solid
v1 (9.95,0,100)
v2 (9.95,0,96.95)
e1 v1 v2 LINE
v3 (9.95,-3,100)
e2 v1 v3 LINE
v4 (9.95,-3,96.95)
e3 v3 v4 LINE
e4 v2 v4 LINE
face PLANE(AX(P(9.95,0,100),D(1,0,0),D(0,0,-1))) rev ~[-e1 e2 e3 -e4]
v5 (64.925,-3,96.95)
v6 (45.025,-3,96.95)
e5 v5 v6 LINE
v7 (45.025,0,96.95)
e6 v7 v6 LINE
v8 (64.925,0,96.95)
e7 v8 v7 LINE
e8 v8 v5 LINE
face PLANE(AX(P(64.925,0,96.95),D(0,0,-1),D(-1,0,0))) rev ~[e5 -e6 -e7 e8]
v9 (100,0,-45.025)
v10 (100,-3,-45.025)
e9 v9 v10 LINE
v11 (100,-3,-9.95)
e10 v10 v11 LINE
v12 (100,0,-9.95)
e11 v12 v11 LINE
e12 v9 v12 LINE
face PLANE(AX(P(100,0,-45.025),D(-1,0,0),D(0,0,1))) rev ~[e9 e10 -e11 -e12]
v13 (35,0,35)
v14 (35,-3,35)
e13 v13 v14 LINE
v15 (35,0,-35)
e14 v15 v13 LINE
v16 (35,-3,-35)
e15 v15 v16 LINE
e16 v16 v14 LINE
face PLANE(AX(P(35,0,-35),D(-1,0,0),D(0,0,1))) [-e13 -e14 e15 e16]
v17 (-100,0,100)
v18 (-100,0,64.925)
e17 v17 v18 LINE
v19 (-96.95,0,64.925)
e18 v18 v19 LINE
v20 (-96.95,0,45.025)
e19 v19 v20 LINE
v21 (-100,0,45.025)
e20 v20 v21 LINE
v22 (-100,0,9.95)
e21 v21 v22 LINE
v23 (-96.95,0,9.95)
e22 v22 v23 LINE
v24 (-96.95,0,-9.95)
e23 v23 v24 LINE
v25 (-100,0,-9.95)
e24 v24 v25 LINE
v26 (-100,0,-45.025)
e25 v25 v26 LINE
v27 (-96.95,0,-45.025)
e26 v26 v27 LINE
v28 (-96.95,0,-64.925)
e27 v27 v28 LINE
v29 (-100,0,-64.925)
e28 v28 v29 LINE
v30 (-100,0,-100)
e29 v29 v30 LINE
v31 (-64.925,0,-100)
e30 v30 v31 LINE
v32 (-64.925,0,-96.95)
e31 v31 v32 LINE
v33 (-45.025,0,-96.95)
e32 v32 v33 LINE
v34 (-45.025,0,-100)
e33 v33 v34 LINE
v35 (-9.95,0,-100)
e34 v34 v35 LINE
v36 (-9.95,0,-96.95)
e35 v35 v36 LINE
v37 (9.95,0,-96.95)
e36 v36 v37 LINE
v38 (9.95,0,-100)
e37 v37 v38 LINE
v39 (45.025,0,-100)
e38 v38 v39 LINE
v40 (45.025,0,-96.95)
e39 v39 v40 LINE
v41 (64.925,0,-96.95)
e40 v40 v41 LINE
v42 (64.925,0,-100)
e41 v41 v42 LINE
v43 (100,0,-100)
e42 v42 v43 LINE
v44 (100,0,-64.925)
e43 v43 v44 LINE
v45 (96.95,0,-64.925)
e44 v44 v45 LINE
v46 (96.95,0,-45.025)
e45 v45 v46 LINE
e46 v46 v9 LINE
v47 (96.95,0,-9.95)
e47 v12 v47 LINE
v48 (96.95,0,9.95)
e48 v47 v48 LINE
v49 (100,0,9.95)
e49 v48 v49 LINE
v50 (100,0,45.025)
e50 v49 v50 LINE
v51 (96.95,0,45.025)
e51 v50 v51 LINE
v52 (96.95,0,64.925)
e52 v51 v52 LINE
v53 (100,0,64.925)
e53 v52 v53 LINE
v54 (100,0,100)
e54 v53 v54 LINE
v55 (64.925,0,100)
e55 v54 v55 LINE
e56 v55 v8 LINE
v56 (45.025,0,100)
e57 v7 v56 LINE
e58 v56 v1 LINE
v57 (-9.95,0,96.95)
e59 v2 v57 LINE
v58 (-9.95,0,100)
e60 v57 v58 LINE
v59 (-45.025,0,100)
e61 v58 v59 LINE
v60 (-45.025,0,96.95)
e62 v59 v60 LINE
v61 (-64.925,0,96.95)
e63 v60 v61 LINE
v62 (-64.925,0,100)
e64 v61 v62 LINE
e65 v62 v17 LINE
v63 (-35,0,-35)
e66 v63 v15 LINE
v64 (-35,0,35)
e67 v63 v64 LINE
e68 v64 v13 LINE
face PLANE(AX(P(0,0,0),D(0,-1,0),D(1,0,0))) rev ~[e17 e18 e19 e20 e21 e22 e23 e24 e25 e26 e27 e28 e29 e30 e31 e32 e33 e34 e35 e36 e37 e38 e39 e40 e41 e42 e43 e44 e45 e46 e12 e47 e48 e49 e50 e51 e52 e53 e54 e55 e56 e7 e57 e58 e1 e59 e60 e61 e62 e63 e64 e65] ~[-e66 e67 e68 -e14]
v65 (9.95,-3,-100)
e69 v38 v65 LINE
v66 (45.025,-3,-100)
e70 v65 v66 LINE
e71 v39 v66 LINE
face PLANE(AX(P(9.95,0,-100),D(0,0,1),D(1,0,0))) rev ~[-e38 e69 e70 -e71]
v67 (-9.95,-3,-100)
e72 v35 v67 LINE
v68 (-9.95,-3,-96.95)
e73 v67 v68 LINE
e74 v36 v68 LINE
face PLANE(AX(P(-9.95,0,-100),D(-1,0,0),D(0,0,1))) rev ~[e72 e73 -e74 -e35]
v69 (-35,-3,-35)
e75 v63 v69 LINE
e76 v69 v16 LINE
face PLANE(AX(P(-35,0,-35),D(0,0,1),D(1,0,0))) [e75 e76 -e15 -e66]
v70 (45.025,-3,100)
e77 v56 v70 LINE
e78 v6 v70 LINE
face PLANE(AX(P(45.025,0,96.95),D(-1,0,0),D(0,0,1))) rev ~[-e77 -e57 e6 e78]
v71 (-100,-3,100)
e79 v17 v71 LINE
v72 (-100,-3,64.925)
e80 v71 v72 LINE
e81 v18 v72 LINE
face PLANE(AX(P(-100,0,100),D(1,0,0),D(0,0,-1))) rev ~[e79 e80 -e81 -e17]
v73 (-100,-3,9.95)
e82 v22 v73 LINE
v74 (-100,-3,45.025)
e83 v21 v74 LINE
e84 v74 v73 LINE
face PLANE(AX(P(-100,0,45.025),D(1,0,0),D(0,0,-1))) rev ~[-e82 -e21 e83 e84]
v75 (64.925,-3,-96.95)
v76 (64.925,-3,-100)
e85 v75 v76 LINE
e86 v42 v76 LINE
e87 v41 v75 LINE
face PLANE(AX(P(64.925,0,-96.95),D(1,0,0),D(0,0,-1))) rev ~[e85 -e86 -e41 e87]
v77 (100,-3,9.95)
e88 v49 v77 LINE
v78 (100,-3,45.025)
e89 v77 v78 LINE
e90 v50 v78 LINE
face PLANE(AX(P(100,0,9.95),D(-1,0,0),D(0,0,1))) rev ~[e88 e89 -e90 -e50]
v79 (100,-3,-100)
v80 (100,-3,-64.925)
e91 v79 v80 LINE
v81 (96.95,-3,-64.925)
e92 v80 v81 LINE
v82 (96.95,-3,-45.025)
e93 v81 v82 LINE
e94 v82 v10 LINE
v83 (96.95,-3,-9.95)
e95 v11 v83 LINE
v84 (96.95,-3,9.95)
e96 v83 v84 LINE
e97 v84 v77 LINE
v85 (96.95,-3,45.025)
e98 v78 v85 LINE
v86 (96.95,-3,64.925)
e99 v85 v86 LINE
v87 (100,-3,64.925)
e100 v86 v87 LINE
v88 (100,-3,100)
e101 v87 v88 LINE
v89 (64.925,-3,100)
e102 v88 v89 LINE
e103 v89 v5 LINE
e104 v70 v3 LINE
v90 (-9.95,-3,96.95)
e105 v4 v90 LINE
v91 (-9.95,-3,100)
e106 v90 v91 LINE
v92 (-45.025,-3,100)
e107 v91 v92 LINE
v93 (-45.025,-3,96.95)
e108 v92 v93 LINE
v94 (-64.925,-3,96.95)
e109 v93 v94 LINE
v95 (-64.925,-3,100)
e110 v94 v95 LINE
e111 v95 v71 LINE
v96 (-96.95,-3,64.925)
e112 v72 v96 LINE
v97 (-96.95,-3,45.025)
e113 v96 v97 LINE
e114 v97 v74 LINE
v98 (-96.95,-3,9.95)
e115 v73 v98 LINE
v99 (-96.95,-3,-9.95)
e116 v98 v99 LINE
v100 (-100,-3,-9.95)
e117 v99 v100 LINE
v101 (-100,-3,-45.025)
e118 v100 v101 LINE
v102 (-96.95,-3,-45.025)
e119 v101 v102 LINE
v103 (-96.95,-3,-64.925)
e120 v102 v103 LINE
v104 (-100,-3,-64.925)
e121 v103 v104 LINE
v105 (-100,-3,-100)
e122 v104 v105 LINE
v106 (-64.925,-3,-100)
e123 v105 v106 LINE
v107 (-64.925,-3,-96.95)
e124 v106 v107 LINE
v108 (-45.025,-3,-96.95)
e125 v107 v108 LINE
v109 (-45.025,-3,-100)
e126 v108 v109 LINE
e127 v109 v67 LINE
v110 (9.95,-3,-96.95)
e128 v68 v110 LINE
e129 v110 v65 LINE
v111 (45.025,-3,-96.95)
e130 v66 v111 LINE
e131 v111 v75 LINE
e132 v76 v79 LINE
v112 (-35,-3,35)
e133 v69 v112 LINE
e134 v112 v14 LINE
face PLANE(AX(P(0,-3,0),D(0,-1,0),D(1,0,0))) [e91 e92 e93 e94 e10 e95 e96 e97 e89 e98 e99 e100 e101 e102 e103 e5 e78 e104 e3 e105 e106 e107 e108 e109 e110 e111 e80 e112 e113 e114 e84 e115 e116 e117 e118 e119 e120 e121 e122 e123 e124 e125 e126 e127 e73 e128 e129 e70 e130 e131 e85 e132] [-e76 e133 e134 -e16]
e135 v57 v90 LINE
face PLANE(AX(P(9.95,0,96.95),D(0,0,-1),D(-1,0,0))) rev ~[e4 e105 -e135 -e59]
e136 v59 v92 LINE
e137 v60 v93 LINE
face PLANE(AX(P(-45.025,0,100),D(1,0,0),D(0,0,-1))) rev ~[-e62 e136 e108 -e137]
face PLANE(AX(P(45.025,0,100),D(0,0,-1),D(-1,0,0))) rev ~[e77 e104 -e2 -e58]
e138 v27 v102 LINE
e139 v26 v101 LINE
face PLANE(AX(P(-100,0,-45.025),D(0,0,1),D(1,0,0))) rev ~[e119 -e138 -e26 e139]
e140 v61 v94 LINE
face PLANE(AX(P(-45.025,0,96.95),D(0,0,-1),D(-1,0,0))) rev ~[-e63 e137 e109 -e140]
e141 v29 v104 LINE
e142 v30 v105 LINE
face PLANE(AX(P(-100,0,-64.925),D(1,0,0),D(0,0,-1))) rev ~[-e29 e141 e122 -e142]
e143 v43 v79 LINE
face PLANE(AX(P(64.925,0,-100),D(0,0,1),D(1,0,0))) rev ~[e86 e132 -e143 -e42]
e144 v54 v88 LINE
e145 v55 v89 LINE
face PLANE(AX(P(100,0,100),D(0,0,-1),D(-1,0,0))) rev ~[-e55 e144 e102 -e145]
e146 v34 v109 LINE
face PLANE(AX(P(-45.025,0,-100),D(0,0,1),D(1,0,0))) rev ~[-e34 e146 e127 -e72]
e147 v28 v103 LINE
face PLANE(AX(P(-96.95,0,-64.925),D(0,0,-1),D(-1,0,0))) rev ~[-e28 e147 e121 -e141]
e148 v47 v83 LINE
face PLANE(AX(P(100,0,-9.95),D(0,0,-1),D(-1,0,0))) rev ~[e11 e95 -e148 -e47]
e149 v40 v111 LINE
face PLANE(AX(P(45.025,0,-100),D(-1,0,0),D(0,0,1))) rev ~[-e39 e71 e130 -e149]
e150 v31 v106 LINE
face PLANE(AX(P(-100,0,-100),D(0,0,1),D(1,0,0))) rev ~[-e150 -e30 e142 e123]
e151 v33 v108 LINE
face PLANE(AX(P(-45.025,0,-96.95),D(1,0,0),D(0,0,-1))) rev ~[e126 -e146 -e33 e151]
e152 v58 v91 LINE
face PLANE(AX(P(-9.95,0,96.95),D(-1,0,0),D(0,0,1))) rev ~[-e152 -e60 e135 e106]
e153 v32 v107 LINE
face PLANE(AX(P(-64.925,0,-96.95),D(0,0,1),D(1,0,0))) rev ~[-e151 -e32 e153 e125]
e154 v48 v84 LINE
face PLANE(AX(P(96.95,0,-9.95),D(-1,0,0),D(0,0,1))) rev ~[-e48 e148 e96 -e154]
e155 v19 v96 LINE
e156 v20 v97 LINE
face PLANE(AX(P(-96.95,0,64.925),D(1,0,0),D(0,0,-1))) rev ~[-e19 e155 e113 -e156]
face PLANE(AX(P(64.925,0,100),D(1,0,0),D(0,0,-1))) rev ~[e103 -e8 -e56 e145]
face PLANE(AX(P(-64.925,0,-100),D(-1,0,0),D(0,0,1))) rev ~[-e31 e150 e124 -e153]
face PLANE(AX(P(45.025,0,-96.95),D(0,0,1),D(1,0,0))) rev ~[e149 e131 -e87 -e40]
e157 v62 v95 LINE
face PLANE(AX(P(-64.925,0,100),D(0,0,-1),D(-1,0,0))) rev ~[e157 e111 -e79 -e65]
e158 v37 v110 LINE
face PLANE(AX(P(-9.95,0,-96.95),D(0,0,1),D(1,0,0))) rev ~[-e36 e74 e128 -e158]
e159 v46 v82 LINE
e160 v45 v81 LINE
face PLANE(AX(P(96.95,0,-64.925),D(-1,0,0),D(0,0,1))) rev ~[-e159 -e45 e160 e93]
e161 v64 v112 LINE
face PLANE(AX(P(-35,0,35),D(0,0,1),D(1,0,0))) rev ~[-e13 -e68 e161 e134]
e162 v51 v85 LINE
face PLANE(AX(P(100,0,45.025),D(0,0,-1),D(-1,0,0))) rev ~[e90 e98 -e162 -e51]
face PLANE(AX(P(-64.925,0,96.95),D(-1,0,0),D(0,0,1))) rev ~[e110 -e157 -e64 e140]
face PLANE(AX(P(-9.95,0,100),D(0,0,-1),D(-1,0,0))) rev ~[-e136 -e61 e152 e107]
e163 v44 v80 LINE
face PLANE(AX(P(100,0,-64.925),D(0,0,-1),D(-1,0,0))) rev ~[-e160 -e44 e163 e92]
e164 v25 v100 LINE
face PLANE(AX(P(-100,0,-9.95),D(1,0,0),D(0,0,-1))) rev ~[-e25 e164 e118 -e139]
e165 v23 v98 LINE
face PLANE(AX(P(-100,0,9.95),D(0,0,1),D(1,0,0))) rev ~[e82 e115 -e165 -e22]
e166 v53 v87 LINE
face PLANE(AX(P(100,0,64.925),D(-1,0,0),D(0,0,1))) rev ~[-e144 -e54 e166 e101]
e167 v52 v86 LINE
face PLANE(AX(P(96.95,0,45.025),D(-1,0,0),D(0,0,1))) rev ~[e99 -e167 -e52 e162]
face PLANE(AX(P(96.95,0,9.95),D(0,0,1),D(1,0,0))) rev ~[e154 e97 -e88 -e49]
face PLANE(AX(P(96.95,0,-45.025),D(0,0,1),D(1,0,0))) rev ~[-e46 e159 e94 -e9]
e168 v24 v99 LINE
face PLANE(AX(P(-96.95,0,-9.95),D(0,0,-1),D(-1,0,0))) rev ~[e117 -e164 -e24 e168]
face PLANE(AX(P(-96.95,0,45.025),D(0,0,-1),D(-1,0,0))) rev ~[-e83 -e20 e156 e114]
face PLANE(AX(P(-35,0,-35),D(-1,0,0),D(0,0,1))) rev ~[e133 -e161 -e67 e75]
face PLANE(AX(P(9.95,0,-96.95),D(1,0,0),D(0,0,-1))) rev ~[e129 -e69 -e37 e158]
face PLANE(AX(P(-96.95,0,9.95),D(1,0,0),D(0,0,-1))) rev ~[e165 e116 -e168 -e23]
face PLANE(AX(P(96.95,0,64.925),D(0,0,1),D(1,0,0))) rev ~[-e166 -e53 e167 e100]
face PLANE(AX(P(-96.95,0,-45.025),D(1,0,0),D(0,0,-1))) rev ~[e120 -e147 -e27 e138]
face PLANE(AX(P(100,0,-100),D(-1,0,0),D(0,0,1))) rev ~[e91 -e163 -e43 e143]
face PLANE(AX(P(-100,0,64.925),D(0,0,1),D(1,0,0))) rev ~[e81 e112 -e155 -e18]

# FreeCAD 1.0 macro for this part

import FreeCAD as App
import Part
import Sketcher
from FreeCAD import Vector
Q = App.Units.Quantity


def add_polygon(sketch, points):
    """Adds a closed chain of lines whose ends are joined by coincident constraints."""
    first, n = sketch.GeometryCount, len(points)
    for a, b in zip(points, points[1:] + points[:1]):
        sketch.addGeometry(Part.LineSegment(App.Vector(*a, 0), App.Vector(*b, 0)), False)
    for i in range(n):
        sketch.addConstraint(Sketcher.Constraint("Coincident", first + i, 2, first + (i + 1) % n, 1))

doc = App.newDocument("Part")
params = doc.addObject("Spreadsheet::Sheet", "Params")
for row, (alias, value) in enumerate([
    ("sketch1_width", "70 mm"),
    ("sketch1_width2", "19.9 mm"),
    ("sketch1_width3", "3.05 mm"),
    ("pad1_length", "3 mm"),
], start=1):
    params.set(f"A{row}", alias)
    params.set(f"B{row}", "=" + value)
    params.setAlias(f"B{row}", alias)

body = doc.addObject("PartDesign::Body", "Body")

# Sketch on XZ plane
sketch1 = body.newObject("Sketcher::SketchObject", "Sketch")
sketch1.AttachmentSupport = (doc.getObject("XZ_Plane"), [""])
sketch1.MapMode = "FlatFace"
add_polygon(sketch1, [(64.925, -100), (100, -100), (100, -64.925), (96.95, -64.925), (96.95, -45.025), (100, -45.025), (100, -9.95), (96.95, -9.95), (96.95, 9.95), (100, 9.95), (100, 45.025), (96.95, 45.025), (96.95, 64.925), (100, 64.925), (100, 100), (64.925, 100), (64.925, 96.95), (45.025, 96.95), (45.025, 100), (9.95, 100), (9.95, 96.95), (-9.95, 96.95), (-9.95, 100), (-45.025, 100), (-45.025, 96.95), (-64.925, 96.95), (-64.925, 100), (-100, 100), (-100, 64.925), (-96.95, 64.925), (-96.95, 45.025), (-100, 45.025), (-100, 9.95), (-96.95, 9.95), (-96.95, -9.95), (-100, -9.95), (-100, -45.025), (-96.95, -45.025), (-96.95, -64.925), (-100, -64.925), (-100, -100), (-64.925, -100), (-64.925, -96.95), (-45.025, -96.95), (-45.025, -100), (-9.95, -100), (-9.95, -96.95), (9.95, -96.95), (9.95, -100), (45.025, -100), (45.025, -96.95), (64.925, -96.95)])  # lines 0-51
add_polygon(sketch1, [(35, -35), (-35, -35), (-35, 35), (35, 35)])  # lines 52-55
sketch1.addConstraint([
    Sketcher.Constraint("Horizontal", 0),
    Sketcher.Constraint("Vertical", 1),
    Sketcher.Constraint("Horizontal", 2),
    Sketcher.Constraint("Vertical", 3),
    Sketcher.Constraint("Horizontal", 4),
    Sketcher.Constraint("Vertical", 5),
    Sketcher.Constraint("Horizontal", 6),
    Sketcher.Constraint("Vertical", 7),
    Sketcher.Constraint("Horizontal", 8),
    Sketcher.Constraint("Vertical", 9),
    Sketcher.Constraint("Horizontal", 10),
    Sketcher.Constraint("Vertical", 11),
    Sketcher.Constraint("Horizontal", 12),
    Sketcher.Constraint("Vertical", 13),
    Sketcher.Constraint("Horizontal", 14),
    Sketcher.Constraint("Vertical", 15),
    Sketcher.Constraint("Horizontal", 16),
    Sketcher.Constraint("Vertical", 17),
    Sketcher.Constraint("Horizontal", 18),
    Sketcher.Constraint("Vertical", 19),
    Sketcher.Constraint("Horizontal", 20),
    Sketcher.Constraint("Vertical", 21),
    Sketcher.Constraint("Horizontal", 22),
    Sketcher.Constraint("Vertical", 23),
    Sketcher.Constraint("Horizontal", 24),
    Sketcher.Constraint("Vertical", 25),
    Sketcher.Constraint("Horizontal", 26),
    Sketcher.Constraint("Vertical", 27),
    Sketcher.Constraint("Horizontal", 28),
    Sketcher.Constraint("Vertical", 29),
    Sketcher.Constraint("Horizontal", 30),
    Sketcher.Constraint("Vertical", 31),
    Sketcher.Constraint("Horizontal", 32),
    Sketcher.Constraint("Vertical", 33),
    Sketcher.Constraint("Horizontal", 34),
    Sketcher.Constraint("Vertical", 35),
    Sketcher.Constraint("Horizontal", 36),
    Sketcher.Constraint("Vertical", 37),
    Sketcher.Constraint("Horizontal", 38),
    Sketcher.Constraint("Vertical", 39),
    Sketcher.Constraint("Horizontal", 40),
    Sketcher.Constraint("Vertical", 41),
    Sketcher.Constraint("Horizontal", 42),
    Sketcher.Constraint("Vertical", 43),
    Sketcher.Constraint("Horizontal", 44),
    Sketcher.Constraint("Vertical", 45),
    Sketcher.Constraint("Horizontal", 46),
    Sketcher.Constraint("Vertical", 47),
    Sketcher.Constraint("Horizontal", 48),
    Sketcher.Constraint("Vertical", 49),
    Sketcher.Constraint("Horizontal", 50),
    Sketcher.Constraint("Vertical", 51),
    Sketcher.Constraint("Horizontal", 52),
    Sketcher.Constraint("Vertical", 53),
    Sketcher.Constraint("Horizontal", 54),
    Sketcher.Constraint("Vertical", 55),
    Sketcher.Constraint("Symmetric", 0, 2, 26, 2, -1, 1),
    Sketcher.Constraint("Symmetric", 2, 2, 28, 2, -1, 1),
    Sketcher.Constraint("Symmetric", 4, 2, 30, 2, -1, 1),
    Sketcher.Constraint("Symmetric", 6, 2, 32, 2, -1, 1),
    Sketcher.Constraint("Symmetric", 8, 2, 34, 2, -1, 1),
    Sketcher.Constraint("Symmetric", 10, 2, 36, 2, -1, 1),
    Sketcher.Constraint("Symmetric", 12, 2, 38, 2, -1, 1),
    Sketcher.Constraint("Symmetric", 14, 2, 40, 2, -1, 1),
    Sketcher.Constraint("Symmetric", 16, 2, 42, 2, -1, 1),
    Sketcher.Constraint("Symmetric", 18, 2, 44, 2, -1, 1),
    Sketcher.Constraint("Symmetric", 20, 2, 46, 2, -1, 1),
    Sketcher.Constraint("Symmetric", 22, 2, 48, 2, -1, 1),
    Sketcher.Constraint("Symmetric", 24, 2, 50, 2, -1, 1),
    Sketcher.Constraint("Symmetric", 52, 2, 54, 2, -1, 1),
    Sketcher.Constraint("Symmetric", 18, 2, 21, 2, -2),
    Sketcher.Constraint("Symmetric", 16, 2, 23, 2, -2),
    Sketcher.Constraint("Symmetric", 14, 2, 25, 2, -2),
    Sketcher.Constraint("Symmetric", 12, 2, 27, 2, -2),
    Sketcher.Constraint("Symmetric", 10, 2, 29, 2, -2),
    Sketcher.Constraint("Symmetric", 8, 2, 31, 2, -2),
    Sketcher.Constraint("Horizontal", 14, 2, 17, 2),
    Sketcher.Constraint("Horizontal", 16, 2, 19, 2),
    Sketcher.Constraint("Vertical", 1, 2, 4, 2),
    Sketcher.Constraint("Vertical", 3, 2, 6, 2),
    Sketcher.Constraint("Equal", 14, 18),
    Sketcher.Constraint("Equal", 16, 20),
    Sketcher.Constraint("Equal", 48, 1),
    Sketcher.Constraint("Equal", 50, 3),
    Sketcher.Constraint("Equal", 1, 5),
    Sketcher.Constraint("Equal", 3, 7),
    Sketcher.Constraint("Equal", 38, 15),
    Sketcher.Constraint("Equal", 54, 53),
    Sketcher.Constraint("DistanceX", 52, 2, 52, 1, Q("70 mm")),
    Sketcher.Constraint("DistanceX", 16, 2, 16, 1, Q("19.9 mm")),
    Sketcher.Constraint("DistanceX", -1, 1, 0, 2, Q("100 mm")),
    Sketcher.Constraint("DistanceX", 2, 2, 2, 1, Q("3.05 mm")),
])
sketch1.setExpression("Constraints[144]", "Params.sketch1_width")
sketch1.setExpression("Constraints[145]", "Params.sketch1_width2")
sketch1.setExpression("Constraints[147]", "Params.sketch1_width3")
pad1 = body.newObject("PartDesign::Pad", "Pad")
pad1.Profile = sketch1
pad1.setExpression("Length", "Params.pad1_length")

doc.recompute()
